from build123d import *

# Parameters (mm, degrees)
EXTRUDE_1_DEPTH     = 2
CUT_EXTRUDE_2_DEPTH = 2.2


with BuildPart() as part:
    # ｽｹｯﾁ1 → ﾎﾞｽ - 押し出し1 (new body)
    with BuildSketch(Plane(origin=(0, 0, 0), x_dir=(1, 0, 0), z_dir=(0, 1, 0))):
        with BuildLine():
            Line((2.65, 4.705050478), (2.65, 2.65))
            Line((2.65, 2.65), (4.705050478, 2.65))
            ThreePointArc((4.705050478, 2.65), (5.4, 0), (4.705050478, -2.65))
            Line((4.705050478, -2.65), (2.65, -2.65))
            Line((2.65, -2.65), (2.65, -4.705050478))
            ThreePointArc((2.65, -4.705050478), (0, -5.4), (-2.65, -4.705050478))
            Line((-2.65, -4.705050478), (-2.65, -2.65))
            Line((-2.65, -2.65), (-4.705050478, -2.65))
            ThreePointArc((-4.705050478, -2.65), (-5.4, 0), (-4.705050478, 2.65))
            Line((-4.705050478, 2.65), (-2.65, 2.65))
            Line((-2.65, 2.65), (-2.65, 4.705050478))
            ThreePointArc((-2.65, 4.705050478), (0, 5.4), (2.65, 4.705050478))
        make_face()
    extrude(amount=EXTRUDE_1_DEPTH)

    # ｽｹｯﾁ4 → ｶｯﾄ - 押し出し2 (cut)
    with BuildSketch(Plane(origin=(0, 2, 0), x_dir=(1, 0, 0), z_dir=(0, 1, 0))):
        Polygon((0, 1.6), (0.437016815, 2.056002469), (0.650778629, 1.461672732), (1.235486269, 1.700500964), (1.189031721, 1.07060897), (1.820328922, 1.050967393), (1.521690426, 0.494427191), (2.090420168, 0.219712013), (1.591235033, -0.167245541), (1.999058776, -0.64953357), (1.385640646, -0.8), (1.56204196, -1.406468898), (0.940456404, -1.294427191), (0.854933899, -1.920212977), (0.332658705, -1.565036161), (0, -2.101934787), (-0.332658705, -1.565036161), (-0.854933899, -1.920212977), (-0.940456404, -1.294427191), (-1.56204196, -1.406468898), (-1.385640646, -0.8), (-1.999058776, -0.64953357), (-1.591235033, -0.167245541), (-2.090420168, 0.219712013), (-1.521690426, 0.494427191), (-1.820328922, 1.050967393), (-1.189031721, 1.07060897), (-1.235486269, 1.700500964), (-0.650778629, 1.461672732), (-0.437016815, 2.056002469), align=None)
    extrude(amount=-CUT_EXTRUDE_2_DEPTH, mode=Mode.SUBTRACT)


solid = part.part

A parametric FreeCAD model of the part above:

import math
import FreeCAD as App
import Part
import Sketcher
from FreeCAD import Vector


def add_polygon(sketch, points):
    """Adds a closed chain of lines whose ends are joined by coincident constraints."""
    first, n = sketch.GeometryCount, len(points)
    for a, b in zip(points, points[1:] + points[:1]):
        sketch.addGeometry(Part.LineSegment(App.Vector(*a, 0), App.Vector(*b, 0)), False)
    for i in range(n):
        sketch.addConstraint(Sketcher.Constraint("Coincident", first + i, 2, first + (i + 1) % n, 1))

doc = App.newDocument("Part")
body = doc.addObject("PartDesign::Body", "Body")

sketch1 = doc.addObject("Sketcher::SketchObject", "Sketch")
body.addObject(sketch1)
sketch1.AttachmentSupport = (doc.XZ_Plane, [""])
sketch1.MapMode = "FlatFace"
sketch1.addGeometry(Part.LineSegment(Vector(2.65, -2.65, 0), Vector(2.65, -4.70505, 0)), False)
sketch1.addGeometry(Part.ArcOfCircle(Part.Circle(Vector(0, 0, 0), Vector(0, 0, 1), 5.4), math.radians(-119.38928), math.radians(-60.61072)), False)
sketch1.addGeometry(Part.LineSegment(Vector(-2.65, -4.70505, 0), Vector(-2.65, -2.65, 0)), False)
sketch1.addGeometry(Part.LineSegment(Vector(-2.65, -2.65, 0), Vector(-4.70505, -2.65, 0)), False)
sketch1.addGeometry(Part.ArcOfCircle(Part.Circle(Vector(0, 0, 0), Vector(0, 0, 1), 5.4), math.radians(150.61072), math.radians(209.38928)), False)
sketch1.addGeometry(Part.LineSegment(Vector(-4.70505, 2.65, 0), Vector(-2.65, 2.65, 0)), False)
sketch1.addGeometry(Part.LineSegment(Vector(-2.65, 2.65, 0), Vector(-2.65, 4.70505, 0)), False)
sketch1.addGeometry(Part.ArcOfCircle(Part.Circle(Vector(0, 0, 0), Vector(0, 0, 1), 5.4), math.radians(60.61072), math.radians(119.38928)), False)
sketch1.addGeometry(Part.LineSegment(Vector(2.65, 4.70505, 0), Vector(2.65, 2.65, 0)), False)
sketch1.addGeometry(Part.LineSegment(Vector(2.65, 2.65, 0), Vector(4.70505, 2.65, 0)), False)
sketch1.addGeometry(Part.ArcOfCircle(Part.Circle(Vector(0, 0, 0), Vector(0, 0, 1), 5.4), math.radians(-29.38928), math.radians(29.38928)), False)
sketch1.addGeometry(Part.LineSegment(Vector(4.70505, -2.65, 0), Vector(2.65, -2.65, 0)), False)
sketch1.addConstraint(Sketcher.Constraint("Coincident", 0, 2, 1, 2))
sketch1.addConstraint(Sketcher.Constraint("Coincident", 1, 1, 2, 1))
sketch1.addConstraint(Sketcher.Constraint("Coincident", 2, 2, 3, 1))
sketch1.addConstraint(Sketcher.Constraint("Coincident", 3, 2, 4, 2))
sketch1.addConstraint(Sketcher.Constraint("Coincident", 4, 1, 5, 1))
sketch1.addConstraint(Sketcher.Constraint("Coincident", 5, 2, 6, 1))
sketch1.addConstraint(Sketcher.Constraint("Coincident", 6, 2, 7, 2))
sketch1.addConstraint(Sketcher.Constraint("Coincident", 7, 1, 8, 1))
sketch1.addConstraint(Sketcher.Constraint("Coincident", 8, 2, 9, 1))
sketch1.addConstraint(Sketcher.Constraint("Coincident", 9, 2, 10, 2))
sketch1.addConstraint(Sketcher.Constraint("Coincident", 10, 1, 11, 1))
sketch1.addConstraint(Sketcher.Constraint("Coincident", 11, 2, 0, 1))
sketch1.addConstraint(Sketcher.Constraint("Vertical", 0))
sketch1.addConstraint(Sketcher.Constraint("Vertical", 2))
sketch1.addConstraint(Sketcher.Constraint("Horizontal", 3))
sketch1.addConstraint(Sketcher.Constraint("Horizontal", 5))
sketch1.addConstraint(Sketcher.Constraint("Vertical", 6))
sketch1.addConstraint(Sketcher.Constraint("Vertical", 8))
sketch1.addConstraint(Sketcher.Constraint("Horizontal", 9))
sketch1.addConstraint(Sketcher.Constraint("Horizontal", 11))
sketch1.addConstraint(Sketcher.Constraint("Coincident", 1, 3, -1, 1))
sketch1.addConstraint(Sketcher.Constraint("Coincident", 4, 3, -1, 1))
sketch1.addConstraint(Sketcher.Constraint("Coincident", 7, 3, -1, 1))
sketch1.addConstraint(Sketcher.Constraint("Coincident", 10, 3, -1, 1))
sketch1.addConstraint(Sketcher.Constraint("Equal", 1, 4))
sketch1.addConstraint(Sketcher.Constraint("Equal", 4, 7))
sketch1.addConstraint(Sketcher.Constraint("Equal", 7, 10))
sketch1.addConstraint(Sketcher.Constraint("Symmetric", 2, 2, 8, 2, -1, 1))
sketch1.addConstraint(Sketcher.Constraint("Symmetric", 5, 2, 11, 2, -1, 1))
sketch1.addConstraint(Sketcher.Constraint("Symmetric", 5, 2, 8, 2, -2))
sketch1.addConstraint(Sketcher.Constraint("Equal", 11, 0))
sketch1.addConstraint(Sketcher.Constraint("Radius", 1, 5.4))
sketch1.addConstraint(Sketcher.Constraint("DistanceX", 1, 1, 0, 2, 5.3))
pad1 = doc.addObject("PartDesign::Pad", "Pad")
body.addObject(pad1)
pad1.Profile = sketch1
pad1.Length = 2
pad1.Reversed = True

sketch2 = doc.addObject("Sketcher::SketchObject", "Sketch001")
body.addObject(sketch2)
sketch2.AttachmentSupport = (doc.XZ_Plane, [""])
sketch2.MapMode = "FlatFace"
sketch2.AttachmentOffset = App.Placement(Vector(0, 0, -2), App.Rotation())
add_polygon(sketch2, [(0.437017, -2.056002), (0, -1.6), (-0.437017, -2.056002), (-0.650779, -1.461673), (-1.235486, -1.700501), (-1.189032, -1.070609), (-1.820329, -1.050967), (-1.52169, -0.494427), (-2.09042, -0.219712), (-1.591235, 0.167246), (-1.999059, 0.649534), (-1.385641, 0.8), (-1.562042, 1.406469), (-0.940456, 1.294427), (-0.854934, 1.920213), (-0.332659, 1.565036), (0, 2.101935), (0.332659, 1.565036), (0.854934, 1.920213), (0.940456, 1.294427), (1.562042, 1.406469), (1.385641, 0.8), (1.999059, 0.649534), (1.591235, 0.167246), (2.09042, -0.219712), (1.52169, -0.494427), (1.820329, -1.050967), (1.189032, -1.070609), (1.235486, -1.700501), (0.650779, -1.461673)])
sketch2.addConstraint(Sketcher.Constraint("Symmetric", 14, 2, 16, 2, -2))
sketch2.addConstraint(Sketcher.Constraint("Symmetric", 13, 2, 17, 2, -2))
sketch2.addConstraint(Sketcher.Constraint("Symmetric", 12, 2, 18, 2, -2))
sketch2.addConstraint(Sketcher.Constraint("Symmetric", 11, 2, 19, 2, -2))
sketch2.addConstraint(Sketcher.Constraint("Symmetric", 10, 2, 20, 2, -2))
sketch2.addConstraint(Sketcher.Constraint("Symmetric", 9, 2, 21, 2, -2))
sketch2.addConstraint(Sketcher.Constraint("Symmetric", 8, 2, 22, 2, -2))
sketch2.addConstraint(Sketcher.Constraint("Symmetric", 7, 2, 23, 2, -2))
sketch2.addConstraint(Sketcher.Constraint("Symmetric", 6, 2, 24, 2, -2))
sketch2.addConstraint(Sketcher.Constraint("Symmetric", 5, 2, 25, 2, -2))
sketch2.addConstraint(Sketcher.Constraint("Symmetric", 4, 2, 26, 2, -2))
sketch2.addConstraint(Sketcher.Constraint("Symmetric", 3, 2, 27, 2, -2))
sketch2.addConstraint(Sketcher.Constraint("Symmetric", 2, 2, 28, 2, -2))
sketch2.addConstraint(Sketcher.Constraint("Symmetric", 1, 2, 29, 2, -2))
sketch2.addConstraint(Sketcher.Constraint("PointOnObject", 0, 2, -2))
sketch2.addConstraint(Sketcher.Constraint("PointOnObject", 15, 2, -2))
sketch2.addConstraint(Sketcher.Constraint("Equal", 1, 2))
sketch2.addConstraint(Sketcher.Constraint("Equal", 2, 3))
sketch2.addConstraint(Sketcher.Constraint("Equal", 3, 4))
sketch2.addConstraint(Sketcher.Constraint("Equal", 4, 5))
sketch2.addConstraint(Sketcher.Constraint("Equal", 5, 6))
sketch2.addConstraint(Sketcher.Constraint("Equal", 6, 7))
sketch2.addConstraint(Sketcher.Constraint("Equal", 7, 8))
sketch2.addConstraint(Sketcher.Constraint("Equal", 8, 9))
sketch2.addConstraint(Sketcher.Constraint("Equal", 9, 10))
sketch2.addConstraint(Sketcher.Constraint("Equal", 10, 11))
sketch2.addConstraint(Sketcher.Constraint("Equal", 11, 12))
sketch2.addConstraint(Sketcher.Constraint("Equal", 12, 13))
sketch2.addConstraint(Sketcher.Constraint("Equal", 13, 14))
sketch2.addConstraint(Sketcher.Constraint("Equal", 14, 15))
sketch2.addConstraint(Sketcher.Constraint("DistanceY", 0, 2, -1, 1, 1.6))
sketch2.addConstraint(Sketcher.Constraint("DistanceY", -1, 1, 10, 2, 0.8))
sketch2.addConstraint(Sketcher.Constraint("DistanceY", 3, 2, -1, 1, 1.700501))
sketch2.addConstraint(Sketcher.Constraint("DistanceY", 1, 2, 3, 2, 0.355502))
sketch2.addConstraint(Sketcher.Constraint("DistanceY", 5, 2, 9, 2, 1.700501))
sketch2.addConstraint(Sketcher.Constraint("DistanceX", 11, 2, 10, 2, 0.176401))
sketch2.addConstraint(Sketcher.Constraint("DistanceX", 8, 2, 13, 2, 0.736301))
sketch2.addConstraint(Sketcher.Constraint("DistanceY", 14, 2, 15, 2, 0.536899))
sketch2.addConstraint(Sketcher.Constraint("DistanceX", 10, 2, 16, 2, 1.718299))
sketch2.addConstraint(Sketcher.Constraint("DistanceX", 16, 2, 21, 2, 1.6664))
sketch2.addConstraint(Sketcher.Constraint("DistanceX", 2, 2, -1, 1, 0.650779))
sketch2.addConstraint(Sketcher.Constraint("DistanceX", 4, 2, -1, 1, 1.189032))
sketch2.addConstraint(Sketcher.Constraint("DistanceY", 4, 2, -1, 1, 1.070609))
sketch2.addConstraint(Sketcher.Constraint("DistanceX", 6, 2, -1, 1, 1.52169))
sketch2.addConstraint(Sketcher.Constraint("DistanceX", 7, 2, -1, 1, 2.09042))
sketch2.addConstraint(Sketcher.Constraint("DistanceY", 12, 2, 11, 2, 0.112042))
pocket1 = doc.addObject("PartDesign::Pocket", "Pocket")
body.addObject(pocket1)
pocket1.Profile = sketch2
pocket1.Length = 2.2
pocket1.Reversed = True

doc.recompute()
